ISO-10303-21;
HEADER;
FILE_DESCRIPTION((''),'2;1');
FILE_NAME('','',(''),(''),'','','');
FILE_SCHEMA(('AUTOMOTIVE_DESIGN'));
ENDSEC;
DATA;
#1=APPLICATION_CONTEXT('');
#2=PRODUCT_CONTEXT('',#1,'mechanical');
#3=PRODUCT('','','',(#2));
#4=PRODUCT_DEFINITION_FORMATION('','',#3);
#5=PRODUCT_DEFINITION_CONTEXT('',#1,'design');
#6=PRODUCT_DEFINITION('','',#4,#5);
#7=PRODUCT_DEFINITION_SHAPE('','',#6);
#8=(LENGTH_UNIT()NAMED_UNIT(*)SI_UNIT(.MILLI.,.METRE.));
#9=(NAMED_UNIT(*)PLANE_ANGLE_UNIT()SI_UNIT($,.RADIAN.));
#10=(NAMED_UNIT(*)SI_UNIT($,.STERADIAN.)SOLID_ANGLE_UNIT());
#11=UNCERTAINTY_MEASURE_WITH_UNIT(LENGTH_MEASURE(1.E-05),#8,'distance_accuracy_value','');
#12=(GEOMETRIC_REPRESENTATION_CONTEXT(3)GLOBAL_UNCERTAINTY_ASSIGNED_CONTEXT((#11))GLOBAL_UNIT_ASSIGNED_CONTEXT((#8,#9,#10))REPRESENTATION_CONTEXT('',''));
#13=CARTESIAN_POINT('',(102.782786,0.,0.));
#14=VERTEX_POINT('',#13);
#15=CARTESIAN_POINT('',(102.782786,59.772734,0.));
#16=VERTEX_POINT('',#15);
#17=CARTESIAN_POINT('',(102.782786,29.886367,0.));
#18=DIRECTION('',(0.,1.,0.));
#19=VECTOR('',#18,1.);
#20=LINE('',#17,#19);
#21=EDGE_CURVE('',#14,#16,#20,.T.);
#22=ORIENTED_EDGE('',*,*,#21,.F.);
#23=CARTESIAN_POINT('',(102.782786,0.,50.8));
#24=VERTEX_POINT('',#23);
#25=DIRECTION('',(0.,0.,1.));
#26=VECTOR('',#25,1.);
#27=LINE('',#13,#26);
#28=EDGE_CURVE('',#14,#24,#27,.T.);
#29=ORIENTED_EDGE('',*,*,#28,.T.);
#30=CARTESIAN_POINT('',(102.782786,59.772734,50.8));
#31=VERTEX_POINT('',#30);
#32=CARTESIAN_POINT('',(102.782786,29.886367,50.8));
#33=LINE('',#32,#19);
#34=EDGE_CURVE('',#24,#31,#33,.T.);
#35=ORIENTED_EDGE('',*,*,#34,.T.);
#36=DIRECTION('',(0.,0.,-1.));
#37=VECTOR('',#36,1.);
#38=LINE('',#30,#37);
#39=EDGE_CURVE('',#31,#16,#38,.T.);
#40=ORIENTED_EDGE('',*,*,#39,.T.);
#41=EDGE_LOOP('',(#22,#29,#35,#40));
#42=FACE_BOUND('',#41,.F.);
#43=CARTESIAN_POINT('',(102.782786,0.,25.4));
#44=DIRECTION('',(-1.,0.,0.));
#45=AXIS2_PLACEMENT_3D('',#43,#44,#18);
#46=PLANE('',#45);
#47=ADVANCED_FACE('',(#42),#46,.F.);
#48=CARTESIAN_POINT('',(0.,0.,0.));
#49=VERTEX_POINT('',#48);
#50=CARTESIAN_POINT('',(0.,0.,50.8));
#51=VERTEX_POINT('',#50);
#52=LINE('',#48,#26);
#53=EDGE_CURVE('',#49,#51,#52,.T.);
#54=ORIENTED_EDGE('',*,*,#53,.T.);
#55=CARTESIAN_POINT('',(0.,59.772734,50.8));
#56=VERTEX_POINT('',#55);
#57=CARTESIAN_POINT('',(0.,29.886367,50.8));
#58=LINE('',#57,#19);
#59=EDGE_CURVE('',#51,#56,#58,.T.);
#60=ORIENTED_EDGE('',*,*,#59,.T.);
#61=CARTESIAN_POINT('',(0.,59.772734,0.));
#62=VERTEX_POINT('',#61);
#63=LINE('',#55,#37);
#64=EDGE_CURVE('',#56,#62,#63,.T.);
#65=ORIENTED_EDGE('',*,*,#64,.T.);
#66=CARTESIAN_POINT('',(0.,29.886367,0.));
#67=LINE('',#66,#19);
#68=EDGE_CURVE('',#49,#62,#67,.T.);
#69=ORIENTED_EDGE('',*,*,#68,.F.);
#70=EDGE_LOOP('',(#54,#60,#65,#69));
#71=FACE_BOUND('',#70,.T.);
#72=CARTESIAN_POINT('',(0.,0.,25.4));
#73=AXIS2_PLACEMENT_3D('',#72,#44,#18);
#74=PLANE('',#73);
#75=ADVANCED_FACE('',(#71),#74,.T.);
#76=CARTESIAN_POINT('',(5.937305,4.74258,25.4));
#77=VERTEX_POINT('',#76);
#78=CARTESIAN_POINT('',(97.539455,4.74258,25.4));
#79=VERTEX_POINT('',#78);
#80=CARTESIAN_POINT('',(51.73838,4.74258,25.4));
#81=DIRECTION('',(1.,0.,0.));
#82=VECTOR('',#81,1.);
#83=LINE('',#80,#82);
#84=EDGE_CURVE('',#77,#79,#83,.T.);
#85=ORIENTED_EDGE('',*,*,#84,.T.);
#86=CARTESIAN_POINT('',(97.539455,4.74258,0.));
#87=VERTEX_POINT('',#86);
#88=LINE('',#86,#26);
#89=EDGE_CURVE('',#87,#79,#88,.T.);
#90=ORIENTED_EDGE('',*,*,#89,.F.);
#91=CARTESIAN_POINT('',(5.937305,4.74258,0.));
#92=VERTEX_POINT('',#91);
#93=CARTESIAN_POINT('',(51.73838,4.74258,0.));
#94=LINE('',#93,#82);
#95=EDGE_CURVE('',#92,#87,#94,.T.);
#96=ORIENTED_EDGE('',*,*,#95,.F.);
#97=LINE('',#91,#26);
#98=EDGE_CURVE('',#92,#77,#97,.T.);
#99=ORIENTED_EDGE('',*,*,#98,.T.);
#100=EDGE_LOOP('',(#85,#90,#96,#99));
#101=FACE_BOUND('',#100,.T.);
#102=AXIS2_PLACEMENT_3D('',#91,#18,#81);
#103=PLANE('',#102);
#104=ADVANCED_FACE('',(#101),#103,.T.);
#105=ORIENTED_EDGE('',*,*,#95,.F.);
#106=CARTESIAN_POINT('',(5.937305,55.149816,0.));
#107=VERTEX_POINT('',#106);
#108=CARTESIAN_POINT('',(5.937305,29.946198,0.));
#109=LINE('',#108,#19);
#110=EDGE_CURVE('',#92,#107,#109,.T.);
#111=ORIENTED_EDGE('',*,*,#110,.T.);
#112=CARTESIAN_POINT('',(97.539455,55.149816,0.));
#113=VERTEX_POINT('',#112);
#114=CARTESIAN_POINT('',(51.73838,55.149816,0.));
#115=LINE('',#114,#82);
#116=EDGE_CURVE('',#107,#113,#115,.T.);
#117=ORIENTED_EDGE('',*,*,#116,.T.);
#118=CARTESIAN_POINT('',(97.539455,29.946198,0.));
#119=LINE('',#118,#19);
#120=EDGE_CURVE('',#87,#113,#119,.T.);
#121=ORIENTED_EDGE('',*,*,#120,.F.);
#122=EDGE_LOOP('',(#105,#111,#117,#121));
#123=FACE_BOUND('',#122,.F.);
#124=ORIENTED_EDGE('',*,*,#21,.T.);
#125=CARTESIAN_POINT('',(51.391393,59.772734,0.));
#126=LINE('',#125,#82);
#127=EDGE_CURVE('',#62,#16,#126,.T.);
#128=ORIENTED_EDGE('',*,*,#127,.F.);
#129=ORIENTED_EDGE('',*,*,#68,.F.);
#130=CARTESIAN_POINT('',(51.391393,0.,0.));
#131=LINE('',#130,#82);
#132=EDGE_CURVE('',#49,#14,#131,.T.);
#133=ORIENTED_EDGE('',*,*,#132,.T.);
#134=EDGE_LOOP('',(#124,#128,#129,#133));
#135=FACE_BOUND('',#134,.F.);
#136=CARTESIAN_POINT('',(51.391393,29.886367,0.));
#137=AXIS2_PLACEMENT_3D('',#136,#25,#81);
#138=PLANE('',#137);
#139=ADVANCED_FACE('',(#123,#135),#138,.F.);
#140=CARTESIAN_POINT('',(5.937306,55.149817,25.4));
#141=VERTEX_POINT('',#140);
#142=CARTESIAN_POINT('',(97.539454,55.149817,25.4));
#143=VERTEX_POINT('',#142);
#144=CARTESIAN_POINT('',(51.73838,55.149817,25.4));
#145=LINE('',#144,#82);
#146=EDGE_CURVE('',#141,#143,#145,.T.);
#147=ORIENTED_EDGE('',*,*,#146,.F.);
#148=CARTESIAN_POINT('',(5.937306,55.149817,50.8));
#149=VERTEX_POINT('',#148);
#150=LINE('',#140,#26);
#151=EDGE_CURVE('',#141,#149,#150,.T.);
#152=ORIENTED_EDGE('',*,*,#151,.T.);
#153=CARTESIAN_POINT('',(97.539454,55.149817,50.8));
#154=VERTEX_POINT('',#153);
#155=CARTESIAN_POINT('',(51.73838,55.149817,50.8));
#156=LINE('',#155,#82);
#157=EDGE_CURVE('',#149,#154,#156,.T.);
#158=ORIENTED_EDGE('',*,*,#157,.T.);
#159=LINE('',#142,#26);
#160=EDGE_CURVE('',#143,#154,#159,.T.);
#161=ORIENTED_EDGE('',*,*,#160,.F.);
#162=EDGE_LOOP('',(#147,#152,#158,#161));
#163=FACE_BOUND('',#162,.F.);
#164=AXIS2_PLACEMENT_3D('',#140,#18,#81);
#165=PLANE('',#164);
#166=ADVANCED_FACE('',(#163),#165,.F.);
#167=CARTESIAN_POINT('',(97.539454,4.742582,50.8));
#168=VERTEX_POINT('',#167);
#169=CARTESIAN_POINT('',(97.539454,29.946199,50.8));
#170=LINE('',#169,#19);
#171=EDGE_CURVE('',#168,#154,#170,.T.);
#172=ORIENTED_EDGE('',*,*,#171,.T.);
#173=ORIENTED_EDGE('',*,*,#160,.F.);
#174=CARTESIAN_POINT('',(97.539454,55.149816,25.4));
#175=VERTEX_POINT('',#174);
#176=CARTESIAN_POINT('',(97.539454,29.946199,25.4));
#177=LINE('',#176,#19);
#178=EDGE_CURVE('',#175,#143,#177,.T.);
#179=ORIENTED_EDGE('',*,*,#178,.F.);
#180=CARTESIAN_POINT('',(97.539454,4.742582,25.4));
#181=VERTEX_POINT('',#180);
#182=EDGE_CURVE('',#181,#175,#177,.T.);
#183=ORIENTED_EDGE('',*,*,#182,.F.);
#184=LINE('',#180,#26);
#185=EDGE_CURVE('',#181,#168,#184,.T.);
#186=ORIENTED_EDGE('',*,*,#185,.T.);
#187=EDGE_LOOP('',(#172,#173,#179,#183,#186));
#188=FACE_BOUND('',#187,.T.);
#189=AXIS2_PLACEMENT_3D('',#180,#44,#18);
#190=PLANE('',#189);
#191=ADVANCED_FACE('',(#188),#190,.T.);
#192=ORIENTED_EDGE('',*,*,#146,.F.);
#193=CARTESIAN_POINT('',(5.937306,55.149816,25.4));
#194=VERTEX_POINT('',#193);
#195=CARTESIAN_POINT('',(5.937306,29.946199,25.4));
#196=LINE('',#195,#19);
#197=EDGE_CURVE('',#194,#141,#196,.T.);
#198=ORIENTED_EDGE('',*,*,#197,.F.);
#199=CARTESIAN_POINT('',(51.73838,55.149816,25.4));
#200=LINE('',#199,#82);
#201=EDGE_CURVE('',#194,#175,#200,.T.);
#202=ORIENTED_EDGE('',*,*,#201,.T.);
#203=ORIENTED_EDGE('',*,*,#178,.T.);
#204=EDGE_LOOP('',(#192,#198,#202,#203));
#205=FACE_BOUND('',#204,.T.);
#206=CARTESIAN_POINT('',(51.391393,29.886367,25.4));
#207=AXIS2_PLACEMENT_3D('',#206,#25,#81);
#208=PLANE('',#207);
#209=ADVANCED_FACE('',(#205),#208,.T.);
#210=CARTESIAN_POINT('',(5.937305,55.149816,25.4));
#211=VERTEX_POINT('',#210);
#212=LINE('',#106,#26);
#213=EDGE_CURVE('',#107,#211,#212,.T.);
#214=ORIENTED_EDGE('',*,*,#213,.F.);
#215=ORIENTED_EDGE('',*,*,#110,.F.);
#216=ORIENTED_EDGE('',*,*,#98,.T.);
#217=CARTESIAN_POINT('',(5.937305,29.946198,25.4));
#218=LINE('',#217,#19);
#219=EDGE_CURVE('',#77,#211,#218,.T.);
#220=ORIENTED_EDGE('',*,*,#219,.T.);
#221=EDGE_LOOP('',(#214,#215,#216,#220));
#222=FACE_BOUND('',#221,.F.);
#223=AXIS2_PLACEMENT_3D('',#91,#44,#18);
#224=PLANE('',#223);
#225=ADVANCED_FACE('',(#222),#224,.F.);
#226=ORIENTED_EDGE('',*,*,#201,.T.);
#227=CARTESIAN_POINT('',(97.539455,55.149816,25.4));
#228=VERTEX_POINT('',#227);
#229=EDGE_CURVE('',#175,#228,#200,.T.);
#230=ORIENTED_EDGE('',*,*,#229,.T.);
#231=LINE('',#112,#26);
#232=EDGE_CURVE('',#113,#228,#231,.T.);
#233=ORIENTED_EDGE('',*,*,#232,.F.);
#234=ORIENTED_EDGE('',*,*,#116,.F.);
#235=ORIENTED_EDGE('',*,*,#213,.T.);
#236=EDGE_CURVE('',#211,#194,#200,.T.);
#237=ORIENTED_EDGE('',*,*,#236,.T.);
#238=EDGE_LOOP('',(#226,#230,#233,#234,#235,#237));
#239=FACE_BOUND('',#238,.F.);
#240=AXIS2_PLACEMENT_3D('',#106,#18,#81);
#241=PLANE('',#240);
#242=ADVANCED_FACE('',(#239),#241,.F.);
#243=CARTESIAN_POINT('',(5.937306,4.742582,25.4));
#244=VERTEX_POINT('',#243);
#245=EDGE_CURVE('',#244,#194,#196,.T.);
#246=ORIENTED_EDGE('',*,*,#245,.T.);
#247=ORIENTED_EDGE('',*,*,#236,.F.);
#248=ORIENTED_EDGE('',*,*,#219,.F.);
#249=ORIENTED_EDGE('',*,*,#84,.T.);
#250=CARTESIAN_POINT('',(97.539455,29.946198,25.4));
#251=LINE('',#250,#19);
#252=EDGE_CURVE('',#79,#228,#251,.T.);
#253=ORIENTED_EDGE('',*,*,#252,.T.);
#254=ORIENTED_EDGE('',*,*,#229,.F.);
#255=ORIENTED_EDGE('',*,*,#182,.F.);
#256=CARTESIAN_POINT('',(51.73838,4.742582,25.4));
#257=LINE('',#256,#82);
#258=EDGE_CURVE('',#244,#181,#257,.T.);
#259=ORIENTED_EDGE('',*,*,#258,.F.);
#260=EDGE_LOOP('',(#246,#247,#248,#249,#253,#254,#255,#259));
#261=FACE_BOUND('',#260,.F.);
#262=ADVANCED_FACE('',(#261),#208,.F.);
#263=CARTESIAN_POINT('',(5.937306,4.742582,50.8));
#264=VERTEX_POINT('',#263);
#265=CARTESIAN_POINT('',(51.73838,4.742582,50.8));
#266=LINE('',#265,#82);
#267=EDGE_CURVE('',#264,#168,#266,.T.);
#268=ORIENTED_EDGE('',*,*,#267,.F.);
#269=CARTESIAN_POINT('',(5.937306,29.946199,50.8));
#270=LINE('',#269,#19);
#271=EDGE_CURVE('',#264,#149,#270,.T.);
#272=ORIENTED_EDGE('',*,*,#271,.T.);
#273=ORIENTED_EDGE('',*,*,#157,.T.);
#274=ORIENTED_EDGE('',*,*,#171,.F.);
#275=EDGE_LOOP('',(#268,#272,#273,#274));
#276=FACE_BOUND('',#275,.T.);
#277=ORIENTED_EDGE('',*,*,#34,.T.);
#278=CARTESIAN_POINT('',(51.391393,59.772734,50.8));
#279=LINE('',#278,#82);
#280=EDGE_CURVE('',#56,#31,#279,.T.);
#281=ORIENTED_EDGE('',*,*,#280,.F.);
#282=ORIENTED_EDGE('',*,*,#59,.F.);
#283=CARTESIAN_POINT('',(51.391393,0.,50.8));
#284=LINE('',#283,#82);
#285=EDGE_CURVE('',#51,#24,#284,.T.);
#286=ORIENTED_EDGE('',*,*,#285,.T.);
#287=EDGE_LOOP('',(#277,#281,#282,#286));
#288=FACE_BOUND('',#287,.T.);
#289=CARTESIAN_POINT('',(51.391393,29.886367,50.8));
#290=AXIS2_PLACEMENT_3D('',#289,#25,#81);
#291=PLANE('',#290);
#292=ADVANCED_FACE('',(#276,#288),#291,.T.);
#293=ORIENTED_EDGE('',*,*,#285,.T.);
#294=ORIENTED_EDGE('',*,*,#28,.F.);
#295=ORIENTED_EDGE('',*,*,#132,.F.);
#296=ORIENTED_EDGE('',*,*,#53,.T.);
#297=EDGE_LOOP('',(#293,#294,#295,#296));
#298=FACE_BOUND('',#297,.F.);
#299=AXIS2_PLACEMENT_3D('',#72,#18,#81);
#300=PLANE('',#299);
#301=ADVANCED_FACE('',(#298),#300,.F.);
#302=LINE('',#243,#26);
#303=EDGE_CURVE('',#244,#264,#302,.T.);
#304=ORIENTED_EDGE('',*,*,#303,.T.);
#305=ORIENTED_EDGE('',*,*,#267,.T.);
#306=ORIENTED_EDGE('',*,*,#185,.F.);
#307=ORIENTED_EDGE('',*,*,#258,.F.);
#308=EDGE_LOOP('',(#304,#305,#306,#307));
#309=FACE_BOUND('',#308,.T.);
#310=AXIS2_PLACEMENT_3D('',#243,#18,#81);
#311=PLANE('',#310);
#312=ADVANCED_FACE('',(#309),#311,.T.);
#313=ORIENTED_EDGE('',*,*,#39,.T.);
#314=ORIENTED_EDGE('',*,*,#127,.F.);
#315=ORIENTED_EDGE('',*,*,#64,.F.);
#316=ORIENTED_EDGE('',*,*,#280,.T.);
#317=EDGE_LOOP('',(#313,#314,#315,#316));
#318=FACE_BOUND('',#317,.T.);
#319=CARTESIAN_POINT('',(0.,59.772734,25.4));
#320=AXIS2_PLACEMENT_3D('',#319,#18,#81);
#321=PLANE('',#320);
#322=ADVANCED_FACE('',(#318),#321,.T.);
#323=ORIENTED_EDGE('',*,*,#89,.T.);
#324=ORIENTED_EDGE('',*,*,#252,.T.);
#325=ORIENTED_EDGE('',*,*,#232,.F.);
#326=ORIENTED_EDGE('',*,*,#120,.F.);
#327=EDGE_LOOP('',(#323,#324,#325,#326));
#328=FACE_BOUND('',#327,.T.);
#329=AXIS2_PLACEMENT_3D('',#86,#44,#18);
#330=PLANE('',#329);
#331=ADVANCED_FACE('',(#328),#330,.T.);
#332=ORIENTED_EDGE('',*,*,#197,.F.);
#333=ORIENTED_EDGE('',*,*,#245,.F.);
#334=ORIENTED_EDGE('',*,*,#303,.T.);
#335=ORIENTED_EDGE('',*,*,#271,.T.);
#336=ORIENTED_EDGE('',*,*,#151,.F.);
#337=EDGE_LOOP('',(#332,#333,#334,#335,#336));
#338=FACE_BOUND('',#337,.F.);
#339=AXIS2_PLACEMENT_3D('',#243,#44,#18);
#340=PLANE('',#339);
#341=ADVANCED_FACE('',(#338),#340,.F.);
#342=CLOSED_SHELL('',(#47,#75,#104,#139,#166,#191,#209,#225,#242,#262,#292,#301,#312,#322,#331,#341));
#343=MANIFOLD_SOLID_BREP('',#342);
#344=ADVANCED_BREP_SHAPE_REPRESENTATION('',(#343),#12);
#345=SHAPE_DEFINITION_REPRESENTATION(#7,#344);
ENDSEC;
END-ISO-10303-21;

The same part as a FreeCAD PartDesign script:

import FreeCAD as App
import Part
import Sketcher
Q = App.Units.Quantity


def add_polygon(sketch, points):
    """Adds a closed chain of lines whose ends are joined by coincident constraints."""
    first, n = sketch.GeometryCount, len(points)
    for a, b in zip(points, points[1:] + points[:1]):
        sketch.addGeometry(Part.LineSegment(App.Vector(*a, 0), App.Vector(*b, 0)), False)
    for i in range(n):
        sketch.addConstraint(Sketcher.Constraint("Coincident", first + i, 2, first + (i + 1) % n, 1))

doc = App.newDocument("Part")
params = doc.addObject("Spreadsheet::Sheet", "Params")
for row, (alias, value) in enumerate([
    ("pad1_length", "1 in"),
    ("pad2_length", "1 in"),
], start=1):
    params.set(f"A{row}", alias)
    params.set(f"B{row}", "=" + value)
    params.setAlias(f"B{row}", alias)

body = doc.addObject("PartDesign::Body", "Body")

sketch1 = body.newObject("Sketcher::SketchObject", "Sketch")
sketch1.AttachmentSupport = (doc.getObject("XY_Plane"), [""])
sketch1.MapMode = "FlatFace"
add_polygon(sketch1, [(0, 60), (0, 0), (103, 0), (103, 60)])
add_polygon(sketch1, [(98, 5), (6, 5), (6, 55), (98, 55)])
sketch1.addConstraint([
    Sketcher.Constraint("Vertical", 0),
    Sketcher.Constraint("Horizontal", 1),
    Sketcher.Constraint("Vertical", 2),
    Sketcher.Constraint("Horizontal", 3),
    Sketcher.Constraint("Horizontal", 4),
    Sketcher.Constraint("Vertical", 5),
    Sketcher.Constraint("Horizontal", 6),
    Sketcher.Constraint("Vertical", 7),
    Sketcher.Constraint("Coincident", 0, 2, -1, 1),
    Sketcher.Constraint("DistanceX", 4, 2, 4, 1, Q("91.602149 mm")),
    Sketcher.Constraint("DistanceX", 1, 1, 1, 2, Q("102.782786 mm")),
    Sketcher.Constraint("DistanceY", 0, 2, 0, 1, Q("59.772734 mm")),
    Sketcher.Constraint("DistanceY", 5, 1, 5, 2, Q("50.407235 mm")),
    Sketcher.Constraint("DistanceY", -1, 1, 4, 2, Q("4.74258 mm")),
    Sketcher.Constraint("DistanceX", 4, 2, 1, 2, Q("96.845481 mm")),
])
pad1 = body.newObject("PartDesign::Pad", "Pad")
pad1.Profile = sketch1
pad1.setExpression("Length", "Params.pad1_length")

sketch2 = body.newObject("Sketcher::SketchObject", "Sketch001")
sketch2.AttachmentSupport = (doc.getObject("XY_Plane"), [""])
sketch2.MapMode = "FlatFace"
sketch2.AttachmentOffset = App.Placement(App.Vector(0, 0, 1 * 25.4), App.Rotation())
add_polygon(sketch2, [(0, 60), (0, 0), (103, 0), (103, 60)])
add_polygon(sketch2, [(98, 5), (6, 5), (6, 55), (98, 55)])
sketch2.addConstraint([
    Sketcher.Constraint("Vertical", 0),
    Sketcher.Constraint("Horizontal", 1),
    Sketcher.Constraint("Vertical", 2),
    Sketcher.Constraint("Horizontal", 3),
    Sketcher.Constraint("Horizontal", 4),
    Sketcher.Constraint("Vertical", 5),
    Sketcher.Constraint("Horizontal", 6),
    Sketcher.Constraint("Vertical", 7),
    Sketcher.Constraint("Coincident", 0, 2, -1, 1),
    Sketcher.Constraint("DistanceX", 4, 2, 4, 1, Q("91.602148 mm")),
    Sketcher.Constraint("DistanceX", 1, 1, 1, 2, Q("102.782786 mm")),
    Sketcher.Constraint("DistanceY", 0, 2, 0, 1, Q("59.772734 mm")),
    Sketcher.Constraint("DistanceY", 5, 1, 5, 2, Q("50.407235 mm")),
    Sketcher.Constraint("DistanceY", -1, 1, 4, 2, Q("4.742582 mm")),
    Sketcher.Constraint("DistanceX", 4, 2, 1, 2, Q("96.84548 mm")),
])
pad2 = body.newObject("PartDesign::Pad", "Pad001")
pad2.Profile = sketch2
pad2.setExpression("Length", "Params.pad2_length")

doc.recompute()
